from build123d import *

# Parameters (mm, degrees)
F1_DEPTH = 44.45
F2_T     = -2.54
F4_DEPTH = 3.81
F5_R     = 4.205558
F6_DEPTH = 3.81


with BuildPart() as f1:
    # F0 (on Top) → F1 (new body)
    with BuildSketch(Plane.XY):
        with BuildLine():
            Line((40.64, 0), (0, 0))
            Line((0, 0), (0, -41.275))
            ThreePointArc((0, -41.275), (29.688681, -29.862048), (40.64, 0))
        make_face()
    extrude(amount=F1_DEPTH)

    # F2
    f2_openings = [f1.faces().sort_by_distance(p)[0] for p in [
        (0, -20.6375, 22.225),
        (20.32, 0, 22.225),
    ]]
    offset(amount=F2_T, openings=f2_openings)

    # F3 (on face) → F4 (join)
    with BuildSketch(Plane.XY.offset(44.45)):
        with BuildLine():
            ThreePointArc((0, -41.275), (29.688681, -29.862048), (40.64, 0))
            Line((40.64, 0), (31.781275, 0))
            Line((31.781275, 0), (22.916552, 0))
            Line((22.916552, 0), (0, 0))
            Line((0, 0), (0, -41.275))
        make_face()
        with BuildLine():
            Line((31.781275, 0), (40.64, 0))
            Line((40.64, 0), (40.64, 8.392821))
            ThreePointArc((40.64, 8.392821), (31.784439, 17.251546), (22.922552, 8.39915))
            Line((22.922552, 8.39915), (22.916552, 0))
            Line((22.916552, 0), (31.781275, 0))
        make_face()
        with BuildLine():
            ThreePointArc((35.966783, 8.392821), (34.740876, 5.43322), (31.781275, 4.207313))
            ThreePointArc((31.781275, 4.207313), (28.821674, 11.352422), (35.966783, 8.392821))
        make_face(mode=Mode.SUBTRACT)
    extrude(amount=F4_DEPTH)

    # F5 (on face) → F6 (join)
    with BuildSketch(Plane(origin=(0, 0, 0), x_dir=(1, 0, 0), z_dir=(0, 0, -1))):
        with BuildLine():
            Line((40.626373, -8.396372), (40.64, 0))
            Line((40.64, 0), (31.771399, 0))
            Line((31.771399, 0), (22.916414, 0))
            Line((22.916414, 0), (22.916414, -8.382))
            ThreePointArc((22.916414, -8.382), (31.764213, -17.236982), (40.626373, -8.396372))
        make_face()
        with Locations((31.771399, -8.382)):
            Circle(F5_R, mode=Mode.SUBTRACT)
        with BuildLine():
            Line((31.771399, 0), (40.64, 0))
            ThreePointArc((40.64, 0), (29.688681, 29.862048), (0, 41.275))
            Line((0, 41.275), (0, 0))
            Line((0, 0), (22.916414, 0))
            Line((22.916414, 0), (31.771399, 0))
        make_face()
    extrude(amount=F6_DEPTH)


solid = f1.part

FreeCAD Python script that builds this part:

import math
import FreeCAD as App
import Part
import Sketcher

V = App.Vector
Q = App.Units.Quantity


def faces_at(feature, points):
    """Names of the faces that lie closest to the given points."""
    faces = feature.Shape.Faces
    near = lambda p: min(range(len(faces)), key=lambda i: faces[i].distToShape(Part.Vertex(*p))[0])
    return sorted({f"Face{near(p) + 1}" for p in points})

doc = App.newDocument("Part")
body = doc.addObject("PartDesign::Body", "Body")

sketch1 = body.newObject("Sketcher::SketchObject", "Sketch")
sketch1.AttachmentSupport = (doc.getObject("XY_Plane"), [""])
sketch1.MapMode = "FlatFace"
sketch1.addGeometry(Part.LineSegment(V(41, 0, 0), V(0, 0, 0)), False)
sketch1.addGeometry(Part.LineSegment(V(0, 0, 0), V(0, -41, 0)), False)
sketch1.addGeometry(Part.ArcOfCircle(Part.Circle(V(2, -3, 0), V(0, 0, 1), 38), math.radians(-93), math.radians(4)), False)
sketch1.addConstraint(Sketcher.Constraint("Coincident", 0, 2, 1, 1))
sketch1.addConstraint(Sketcher.Constraint("Coincident", 1, 2, 2, 1))
sketch1.addConstraint(Sketcher.Constraint("Coincident", 2, 2, 0, 1))
sketch1.addConstraint(Sketcher.Constraint("Horizontal", 0))
sketch1.addConstraint(Sketcher.Constraint("Vertical", 1))
sketch1.addConstraint(Sketcher.Constraint("Coincident", 0, 2, -1, 1))
sketch1.addConstraint(Sketcher.Constraint("DistanceX", 0, 2, 0, 1, Q("1.6 in")))
sketch1.addConstraint(Sketcher.Constraint("DistanceY", 1, 2, 1, 1, Q("1.625 in")))
sketch1.addConstraint(Sketcher.Constraint("Radius", 2, Q("38.473121 mm")))
pad1 = body.newObject("PartDesign::Pad", "Pad")
pad1.Profile = sketch1
pad1.Length = Q("1.75 in")
doc.recompute()

thickness = body.newObject("PartDesign::Thickness", "Thickness")
thickness.Base = (pad1, faces_at(pad1, [(0, -20.637, 22.225), (20.32, 0, 22.225)]))
thickness.Value = Q("0.1 in")
thickness.Reversed = True
thickness.Join = "Arc"

sketch2 = body.newObject("Sketcher::SketchObject", "Sketch001")
sketch2.AttachmentSupport = (doc.getObject("XY_Plane"), [""])
sketch2.MapMode = "FlatFace"
sketch2.AttachmentOffset = App.Placement(V(0, 0, 1.75 * 25.4), App.Rotation())
sketch2.addGeometry(Part.ArcOfCircle(Part.Circle(V(2.3, -2.9, 0), V(0, 0, 1), 38.5), math.radians(-93), math.radians(4)), False)
sketch2.addGeometry(Part.LineSegment(V(40.6, 0, 0), V(40.6, 8.4, 0)), False)
sketch2.addGeometry(Part.ArcOfCircle(Part.Circle(V(31.8, 8.4, 0), V(0, 0, 1), 8.9), math.radians(0), math.radians(180)), False)
sketch2.addGeometry(Part.LineSegment(V(22.9, 8.4, 0), V(22.9, 0, 0)), False)
sketch2.addGeometry(Part.LineSegment(V(22.9, 0, 0), V(0, 0, 0)), False)
sketch2.addGeometry(Part.LineSegment(V(0, 0, 0), V(0, -41.3, 0)), False)
sketch2.addGeometry(Part.ArcOfCircle(Part.Circle(V(31.8, 8.4, 0), V(0, 0, 1), 4.2), math.radians(0), math.radians(270)), False)
sketch2.addGeometry(Part.ArcOfCircle(Part.Circle(V(31.8, 8.4, 0), V(0, 0, 1), 4.2), math.radians(-90), math.radians(0)), False)
sketch2.addConstraint(Sketcher.Constraint("Coincident", 0, 2, 1, 1))
sketch2.addConstraint(Sketcher.Constraint("Tangent", 1, 2, 2, 1))
sketch2.addConstraint(Sketcher.Constraint("Tangent", 2, 2, 3, 1))
sketch2.addConstraint(Sketcher.Constraint("Coincident", 3, 2, 4, 1))
sketch2.addConstraint(Sketcher.Constraint("Coincident", 4, 2, 5, 1))
sketch2.addConstraint(Sketcher.Constraint("Coincident", 5, 2, 0, 1))
sketch2.addConstraint(Sketcher.Constraint("Tangent", 6, 1, 7, 2))
sketch2.addConstraint(Sketcher.Constraint("Coincident", 7, 1, 6, 2))
sketch2.addConstraint(Sketcher.Constraint("Vertical", 1))
sketch2.addConstraint(Sketcher.Constraint("Horizontal", 4))
sketch2.addConstraint(Sketcher.Constraint("Vertical", 5))
sketch2.addConstraint(Sketcher.Constraint("Coincident", 4, 2, -1, 1))
sketch2.addConstraint(Sketcher.Constraint("Coincident", 6, 3, 2, 3))
sketch2.addConstraint(Sketcher.Constraint("PointOnObject", 0, 2, -1))
sketch2.addConstraint(Sketcher.Constraint("Horizontal", 1, 2, 6, 1))
sketch2.addConstraint(Sketcher.Constraint("Vertical", 6, 3, 7, 1))
sketch2.addConstraint(Sketcher.Constraint("DistanceX", -1, 1, 0, 2, Q("1.6 in")))
sketch2.addConstraint(Sketcher.Constraint("DistanceY", 5, 2, 5, 1, Q("1.625 in")))
sketch2.addConstraint(Sketcher.Constraint("Radius", 0, Q("38.473121 mm")))
sketch2.addConstraint(Sketcher.Constraint("Radius", 7, Q("4.185508 mm")))
sketch2.addConstraint(Sketcher.Constraint("Radius", 2, Q("8.858725 mm")))
sketch2.addConstraint(Sketcher.Constraint("DistanceX", 4, 2, 4, 1, Q("22.916552 mm")))
sketch2.addConstraint(Sketcher.Constraint("DistanceY", 1, 1, 1, 2, Q("8.392821 mm")))
pad2 = body.newObject("PartDesign::Pad", "Pad001")
pad2.Profile = sketch2
pad2.Length = Q("0.15 in")

sketch3 = body.newObject("Sketcher::SketchObject", "Sketch002")
sketch3.AttachmentSupport = (doc.getObject("XY_Plane"), [""])
sketch3.MapMode = "FlatFace"
sketch3.addGeometry(Part.LineSegment(V(40.6, 8.4, 0), V(40.6, 0, 0)), False)
sketch3.addGeometry(Part.ArcOfCircle(Part.Circle(V(2.3, -2.9, 0), V(0, 0, 1), 38.5), math.radians(-93), math.radians(4)), False)
sketch3.addGeometry(Part.LineSegment(V(0, -41.3, 0), V(0, 0, 0)), False)
sketch3.addGeometry(Part.LineSegment(V(0, 0, 0), V(22.9, 0, 0)), False)
sketch3.addGeometry(Part.LineSegment(V(22.9, 0, 0), V(22.9, 8.4, 0)), False)
sketch3.addGeometry(Part.ArcOfCircle(Part.Circle(V(31.8, 8.4, 0), V(0, 0, 1), 8.9), math.radians(0), math.radians(180)), False)
sketch3.addGeometry(Part.Circle(V(31.8, 8.4, 0), V(0, 0, 1), 4.2), False)
sketch3.addConstraint(Sketcher.Constraint("Coincident", 0, 2, 1, 2))
sketch3.addConstraint(Sketcher.Constraint("Coincident", 1, 1, 2, 1))
sketch3.addConstraint(Sketcher.Constraint("Coincident", 2, 2, 3, 1))
sketch3.addConstraint(Sketcher.Constraint("Coincident", 3, 2, 4, 1))
sketch3.addConstraint(Sketcher.Constraint("Tangent", 4, 2, 5, 2))
sketch3.addConstraint(Sketcher.Constraint("Tangent", 5, 1, 0, 1))
sketch3.addConstraint(Sketcher.Constraint("Vertical", 2))
sketch3.addConstraint(Sketcher.Constraint("Horizontal", 3))
sketch3.addConstraint(Sketcher.Constraint("Vertical", 4))
sketch3.addConstraint(Sketcher.Constraint("Coincident", 2, 2, -1, 1))
sketch3.addConstraint(Sketcher.Constraint("Coincident", 6, 3, 5, 3))
sketch3.addConstraint(Sketcher.Constraint("PointOnObject", 0, 2, -1))
sketch3.addConstraint(Sketcher.Constraint("DistanceY", 4, 1, 4, 2, Q("0.33 in")))
sketch3.addConstraint(Sketcher.Constraint("DistanceX", -1, 1, 0, 2, Q("1.6 in")))
sketch3.addConstraint(Sketcher.Constraint("DistanceY", 2, 1, 2, 2, Q("1.625 in")))
sketch3.addConstraint(Sketcher.Constraint("Radius", 1, Q("38.473121 mm")))
sketch3.addConstraint(Sketcher.Constraint("Diameter", 6, Q("8.411116 mm")))
sketch3.addConstraint(Sketcher.Constraint("Radius", 5, Q("8.854985 mm")))
sketch3.addConstraint(Sketcher.Constraint("DistanceX", -1, 1, 5, 3, Q("31.771399 mm")))
pad3 = body.newObject("PartDesign::Pad", "Pad002")
pad3.Profile = sketch3
pad3.Length = Q("0.15 in")
pad3.Reversed = True

doc.recompute()
